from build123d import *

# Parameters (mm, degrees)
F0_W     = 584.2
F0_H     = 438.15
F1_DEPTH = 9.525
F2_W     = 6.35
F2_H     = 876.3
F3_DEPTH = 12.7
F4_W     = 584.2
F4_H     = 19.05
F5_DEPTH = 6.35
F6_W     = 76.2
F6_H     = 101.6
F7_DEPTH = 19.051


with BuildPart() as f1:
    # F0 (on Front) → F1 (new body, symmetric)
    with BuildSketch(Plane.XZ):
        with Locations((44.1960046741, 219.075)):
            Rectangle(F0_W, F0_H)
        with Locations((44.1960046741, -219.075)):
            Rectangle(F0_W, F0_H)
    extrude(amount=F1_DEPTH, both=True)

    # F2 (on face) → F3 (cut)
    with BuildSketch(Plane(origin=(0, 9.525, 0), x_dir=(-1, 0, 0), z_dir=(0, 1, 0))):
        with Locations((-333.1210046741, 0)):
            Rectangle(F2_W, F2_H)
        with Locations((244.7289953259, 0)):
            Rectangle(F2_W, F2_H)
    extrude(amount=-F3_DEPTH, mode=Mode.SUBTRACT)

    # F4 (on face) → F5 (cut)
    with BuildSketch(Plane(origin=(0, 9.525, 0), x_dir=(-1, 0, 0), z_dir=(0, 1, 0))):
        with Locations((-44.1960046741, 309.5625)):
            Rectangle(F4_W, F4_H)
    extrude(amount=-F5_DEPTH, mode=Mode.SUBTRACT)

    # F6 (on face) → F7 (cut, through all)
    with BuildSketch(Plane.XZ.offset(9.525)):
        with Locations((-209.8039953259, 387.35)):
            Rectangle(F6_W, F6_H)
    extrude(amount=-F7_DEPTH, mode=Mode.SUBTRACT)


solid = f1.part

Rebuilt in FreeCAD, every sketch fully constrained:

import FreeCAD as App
import Part
import Sketcher
from FreeCAD import Vector
Q = App.Units.Quantity

doc = App.newDocument("Part")
params = doc.addObject("Spreadsheet::Sheet", "Params")
for row, (alias, value) in enumerate([
    ("sketch1_width", "23 in"),
    ("sketch1_height", "34.5 in"),
    ("pad1_length", "0.75 in"),
    ("sketch2_height", "34.5 in"),
    ("sketch2_width", "0.25 in"),
    ("pocket1_length", "0.5 in"),
    ("sketch3_width", "23 in"),
    ("sketch3_height", "0.75 in"),
    ("pocket2_length", "0.25 in"),
    ("sketch4_width", "3 in"),
    ("sketch4_height", "4 in"),
], start=1):
    params.set(f"A{row}", alias)
    params.set(f"B{row}", "=" + value)
    params.setAlias(f"B{row}", alias)

body = doc.addObject("PartDesign::Body", "Body")

sketch1 = body.newObject("Sketcher::SketchObject", "Sketch")
sketch1.AttachmentSupport = (doc.getObject("XZ_Plane"), [""])
sketch1.MapMode = "FlatFace"
sketch1.addGeometry(Part.LineSegment(Vector(-248, 438, 0), Vector(-248, -438, 0)), False)
sketch1.addGeometry(Part.LineSegment(Vector(-248, -438, 0), Vector(336, -438, 0)), False)
sketch1.addGeometry(Part.LineSegment(Vector(336, -438, 0), Vector(336, 438, 0)), False)
sketch1.addGeometry(Part.LineSegment(Vector(336, 438, 0), Vector(-248, 438, 0)), False)
sketch1.addConstraint(Sketcher.Constraint("Coincident", 0, 2, 1, 1))
sketch1.addConstraint(Sketcher.Constraint("Coincident", 1, 2, 2, 1))
sketch1.addConstraint(Sketcher.Constraint("Coincident", 2, 2, 3, 1))
sketch1.addConstraint(Sketcher.Constraint("Coincident", 3, 2, 0, 1))
sketch1.addConstraint(Sketcher.Constraint("Vertical", 0))
sketch1.addConstraint(Sketcher.Constraint("Horizontal", 1))
sketch1.addConstraint(Sketcher.Constraint("Vertical", 2))
sketch1.addConstraint(Sketcher.Constraint("Horizontal", 3))
sketch1.addConstraint(Sketcher.Constraint("DistanceX", 1, 1, 1, 2, Q("23 in")))
sketch1.addConstraint(Sketcher.Constraint("DistanceY", 0, 2, 0, 1, Q("34.5 in")))
sketch1.addConstraint(Sketcher.Constraint("DistanceX", 0, 2, -1, 1, Q("9.7599998 in")))
sketch1.addConstraint(Sketcher.Constraint("DistanceY", 0, 2, -1, 1, Q("17.25 in")))
sketch1.setExpression("Constraints[8]", "Params.sketch1_width")
sketch1.setExpression("Constraints[9]", "Params.sketch1_height")
pad1 = body.newObject("PartDesign::Pad", "Pad")
pad1.Profile = sketch1
pad1.setExpression("Length", "Params.pad1_length")
pad1.Midplane = True

sketch2 = body.newObject("Sketcher::SketchObject", "Sketch001")
sketch2.AttachmentSupport = (doc.getObject("XZ_Plane"), [""])
sketch2.MapMode = "FlatFace"
sketch2.AttachmentOffset = App.Placement(Vector(0, 0, -0.375 * 25.4), App.Rotation())
sketch2.addGeometry(Part.LineSegment(Vector(336, 438, 0), Vector(336, -438, 0)), False)
sketch2.addGeometry(Part.LineSegment(Vector(336, -438, 0), Vector(330, -438, 0)), False)
sketch2.addGeometry(Part.LineSegment(Vector(330, -438, 0), Vector(330, 438, 0)), False)
sketch2.addGeometry(Part.LineSegment(Vector(330, 438, 0), Vector(336, 438, 0)), False)
sketch2.addGeometry(Part.LineSegment(Vector(-242, 438, 0), Vector(-242, -438, 0)), False)
sketch2.addGeometry(Part.LineSegment(Vector(-242, -438, 0), Vector(-248, -438, 0)), False)
sketch2.addGeometry(Part.LineSegment(Vector(-248, -438, 0), Vector(-248, 438, 0)), False)
sketch2.addGeometry(Part.LineSegment(Vector(-248, 438, 0), Vector(-242, 438, 0)), False)
sketch2.addConstraint(Sketcher.Constraint("Coincident", 0, 2, 1, 1))
sketch2.addConstraint(Sketcher.Constraint("Coincident", 1, 2, 2, 1))
sketch2.addConstraint(Sketcher.Constraint("Coincident", 2, 2, 3, 1))
sketch2.addConstraint(Sketcher.Constraint("Coincident", 3, 2, 0, 1))
sketch2.addConstraint(Sketcher.Constraint("Coincident", 4, 2, 5, 1))
sketch2.addConstraint(Sketcher.Constraint("Coincident", 5, 2, 6, 1))
sketch2.addConstraint(Sketcher.Constraint("Coincident", 6, 2, 7, 1))
sketch2.addConstraint(Sketcher.Constraint("Coincident", 7, 2, 4, 1))
sketch2.addConstraint(Sketcher.Constraint("Vertical", 0))
sketch2.addConstraint(Sketcher.Constraint("Horizontal", 1))
sketch2.addConstraint(Sketcher.Constraint("Vertical", 2))
sketch2.addConstraint(Sketcher.Constraint("Horizontal", 3))
sketch2.addConstraint(Sketcher.Constraint("Vertical", 4))
sketch2.addConstraint(Sketcher.Constraint("Horizontal", 5))
sketch2.addConstraint(Sketcher.Constraint("Vertical", 6))
sketch2.addConstraint(Sketcher.Constraint("Horizontal", 7))
sketch2.addConstraint(Sketcher.Constraint("Horizontal", 1, 2, 4, 2))
sketch2.addConstraint(Sketcher.Constraint("Horizontal", 3, 2, 6, 2))
sketch2.addConstraint(Sketcher.Constraint("Equal", 3, 5))
sketch2.addConstraint(Sketcher.Constraint("DistanceY", 0, 2, 0, 1, Q("34.5 in")))
sketch2.addConstraint(Sketcher.Constraint("DistanceX", 5, 2, 0, 2, Q("23 in")))
sketch2.addConstraint(Sketcher.Constraint("DistanceX", 1, 2, 1, 1, Q("0.25 in")))
sketch2.addConstraint(Sketcher.Constraint("DistanceX", -1, 1, 0, 2, Q("13.2400002 in")))
sketch2.addConstraint(Sketcher.Constraint("DistanceY", 0, 2, -1, 1, Q("17.25 in")))
sketch2.setExpression("Constraints[19]", "Params.sketch2_height")
sketch2.setExpression("Constraints[21]", "Params.sketch2_width")
pocket1 = body.newObject("PartDesign::Pocket", "Pocket")
pocket1.Profile = sketch2
pocket1.setExpression("Length", "Params.pocket1_length")
pocket1.Reversed = True

sketch3 = body.newObject("Sketcher::SketchObject", "Sketch002")
sketch3.AttachmentSupport = (doc.getObject("XZ_Plane"), [""])
sketch3.MapMode = "FlatFace"
sketch3.AttachmentOffset = App.Placement(Vector(0, 0, -0.375 * 25.4), App.Rotation())
sketch3.addGeometry(Part.LineSegment(Vector(336, 319, 0), Vector(336, 300, 0)), False)
sketch3.addGeometry(Part.LineSegment(Vector(336, 300, 0), Vector(-248, 300, 0)), False)
sketch3.addGeometry(Part.LineSegment(Vector(-248, 300, 0), Vector(-248, 319, 0)), False)
sketch3.addGeometry(Part.LineSegment(Vector(-248, 319, 0), Vector(336, 319, 0)), False)
sketch3.addConstraint(Sketcher.Constraint("Coincident", 0, 2, 1, 1))
sketch3.addConstraint(Sketcher.Constraint("Coincident", 1, 2, 2, 1))
sketch3.addConstraint(Sketcher.Constraint("Coincident", 2, 2, 3, 1))
sketch3.addConstraint(Sketcher.Constraint("Coincident", 3, 2, 0, 1))
sketch3.addConstraint(Sketcher.Constraint("Vertical", 0))
sketch3.addConstraint(Sketcher.Constraint("Horizontal", 1))
sketch3.addConstraint(Sketcher.Constraint("Vertical", 2))
sketch3.addConstraint(Sketcher.Constraint("Horizontal", 3))
sketch3.addConstraint(Sketcher.Constraint("DistanceX", 1, 2, 1, 1, Q("23 in")))
sketch3.addConstraint(Sketcher.Constraint("DistanceY", 0, 2, 0, 1, Q("0.75 in")))
sketch3.addConstraint(Sketcher.Constraint("DistanceX", -1, 1, 0, 2, Q("13.2400002 in")))
sketch3.addConstraint(Sketcher.Constraint("DistanceY", -1, 1, 0, 2, Q("11.8125 in")))
sketch3.setExpression("Constraints[8]", "Params.sketch3_width")
sketch3.setExpression("Constraints[9]", "Params.sketch3_height")
pocket2 = body.newObject("PartDesign::Pocket", "Pocket001")
pocket2.Profile = sketch3
pocket2.setExpression("Length", "Params.pocket2_length")
pocket2.Reversed = True

sketch4 = body.newObject("Sketcher::SketchObject", "Sketch003")
sketch4.AttachmentSupport = (doc.getObject("XZ_Plane"), [""])
sketch4.MapMode = "FlatFace"
sketch4.AttachmentOffset = App.Placement(Vector(0, 0, 0.375 * 25.4), App.Rotation())
sketch4.addGeometry(Part.LineSegment(Vector(-248, 438, 0), Vector(-248, 337, 0)), False)
sketch4.addGeometry(Part.LineSegment(Vector(-248, 337, 0), Vector(-172, 337, 0)), False)
sketch4.addGeometry(Part.LineSegment(Vector(-172, 337, 0), Vector(-172, 438, 0)), False)
sketch4.addGeometry(Part.LineSegment(Vector(-172, 438, 0), Vector(-248, 438, 0)), False)
sketch4.addConstraint(Sketcher.Constraint("Coincident", 0, 2, 1, 1))
sketch4.addConstraint(Sketcher.Constraint("Coincident", 1, 2, 2, 1))
sketch4.addConstraint(Sketcher.Constraint("Coincident", 2, 2, 3, 1))
sketch4.addConstraint(Sketcher.Constraint("Coincident", 3, 2, 0, 1))
sketch4.addConstraint(Sketcher.Constraint("Vertical", 0))
sketch4.addConstraint(Sketcher.Constraint("Horizontal", 1))
sketch4.addConstraint(Sketcher.Constraint("Vertical", 2))
sketch4.addConstraint(Sketcher.Constraint("Horizontal", 3))
sketch4.addConstraint(Sketcher.Constraint("DistanceX", 1, 1, 1, 2, Q("3 in")))
sketch4.addConstraint(Sketcher.Constraint("DistanceY", 0, 2, 0, 1, Q("4 in")))
sketch4.addConstraint(Sketcher.Constraint("DistanceX", 0, 2, -1, 1, Q("9.7599998 in")))
sketch4.addConstraint(Sketcher.Constraint("DistanceY", -1, 1, 0, 2, Q("13.25 in")))
sketch4.setExpression("Constraints[8]", "Params.sketch4_width")
sketch4.setExpression("Constraints[9]", "Params.sketch4_height")
pocket3 = body.newObject("PartDesign::Pocket", "Pocket002")
pocket3.Profile = sketch4
pocket3.Type = "ThroughAll"

doc.recompute()
